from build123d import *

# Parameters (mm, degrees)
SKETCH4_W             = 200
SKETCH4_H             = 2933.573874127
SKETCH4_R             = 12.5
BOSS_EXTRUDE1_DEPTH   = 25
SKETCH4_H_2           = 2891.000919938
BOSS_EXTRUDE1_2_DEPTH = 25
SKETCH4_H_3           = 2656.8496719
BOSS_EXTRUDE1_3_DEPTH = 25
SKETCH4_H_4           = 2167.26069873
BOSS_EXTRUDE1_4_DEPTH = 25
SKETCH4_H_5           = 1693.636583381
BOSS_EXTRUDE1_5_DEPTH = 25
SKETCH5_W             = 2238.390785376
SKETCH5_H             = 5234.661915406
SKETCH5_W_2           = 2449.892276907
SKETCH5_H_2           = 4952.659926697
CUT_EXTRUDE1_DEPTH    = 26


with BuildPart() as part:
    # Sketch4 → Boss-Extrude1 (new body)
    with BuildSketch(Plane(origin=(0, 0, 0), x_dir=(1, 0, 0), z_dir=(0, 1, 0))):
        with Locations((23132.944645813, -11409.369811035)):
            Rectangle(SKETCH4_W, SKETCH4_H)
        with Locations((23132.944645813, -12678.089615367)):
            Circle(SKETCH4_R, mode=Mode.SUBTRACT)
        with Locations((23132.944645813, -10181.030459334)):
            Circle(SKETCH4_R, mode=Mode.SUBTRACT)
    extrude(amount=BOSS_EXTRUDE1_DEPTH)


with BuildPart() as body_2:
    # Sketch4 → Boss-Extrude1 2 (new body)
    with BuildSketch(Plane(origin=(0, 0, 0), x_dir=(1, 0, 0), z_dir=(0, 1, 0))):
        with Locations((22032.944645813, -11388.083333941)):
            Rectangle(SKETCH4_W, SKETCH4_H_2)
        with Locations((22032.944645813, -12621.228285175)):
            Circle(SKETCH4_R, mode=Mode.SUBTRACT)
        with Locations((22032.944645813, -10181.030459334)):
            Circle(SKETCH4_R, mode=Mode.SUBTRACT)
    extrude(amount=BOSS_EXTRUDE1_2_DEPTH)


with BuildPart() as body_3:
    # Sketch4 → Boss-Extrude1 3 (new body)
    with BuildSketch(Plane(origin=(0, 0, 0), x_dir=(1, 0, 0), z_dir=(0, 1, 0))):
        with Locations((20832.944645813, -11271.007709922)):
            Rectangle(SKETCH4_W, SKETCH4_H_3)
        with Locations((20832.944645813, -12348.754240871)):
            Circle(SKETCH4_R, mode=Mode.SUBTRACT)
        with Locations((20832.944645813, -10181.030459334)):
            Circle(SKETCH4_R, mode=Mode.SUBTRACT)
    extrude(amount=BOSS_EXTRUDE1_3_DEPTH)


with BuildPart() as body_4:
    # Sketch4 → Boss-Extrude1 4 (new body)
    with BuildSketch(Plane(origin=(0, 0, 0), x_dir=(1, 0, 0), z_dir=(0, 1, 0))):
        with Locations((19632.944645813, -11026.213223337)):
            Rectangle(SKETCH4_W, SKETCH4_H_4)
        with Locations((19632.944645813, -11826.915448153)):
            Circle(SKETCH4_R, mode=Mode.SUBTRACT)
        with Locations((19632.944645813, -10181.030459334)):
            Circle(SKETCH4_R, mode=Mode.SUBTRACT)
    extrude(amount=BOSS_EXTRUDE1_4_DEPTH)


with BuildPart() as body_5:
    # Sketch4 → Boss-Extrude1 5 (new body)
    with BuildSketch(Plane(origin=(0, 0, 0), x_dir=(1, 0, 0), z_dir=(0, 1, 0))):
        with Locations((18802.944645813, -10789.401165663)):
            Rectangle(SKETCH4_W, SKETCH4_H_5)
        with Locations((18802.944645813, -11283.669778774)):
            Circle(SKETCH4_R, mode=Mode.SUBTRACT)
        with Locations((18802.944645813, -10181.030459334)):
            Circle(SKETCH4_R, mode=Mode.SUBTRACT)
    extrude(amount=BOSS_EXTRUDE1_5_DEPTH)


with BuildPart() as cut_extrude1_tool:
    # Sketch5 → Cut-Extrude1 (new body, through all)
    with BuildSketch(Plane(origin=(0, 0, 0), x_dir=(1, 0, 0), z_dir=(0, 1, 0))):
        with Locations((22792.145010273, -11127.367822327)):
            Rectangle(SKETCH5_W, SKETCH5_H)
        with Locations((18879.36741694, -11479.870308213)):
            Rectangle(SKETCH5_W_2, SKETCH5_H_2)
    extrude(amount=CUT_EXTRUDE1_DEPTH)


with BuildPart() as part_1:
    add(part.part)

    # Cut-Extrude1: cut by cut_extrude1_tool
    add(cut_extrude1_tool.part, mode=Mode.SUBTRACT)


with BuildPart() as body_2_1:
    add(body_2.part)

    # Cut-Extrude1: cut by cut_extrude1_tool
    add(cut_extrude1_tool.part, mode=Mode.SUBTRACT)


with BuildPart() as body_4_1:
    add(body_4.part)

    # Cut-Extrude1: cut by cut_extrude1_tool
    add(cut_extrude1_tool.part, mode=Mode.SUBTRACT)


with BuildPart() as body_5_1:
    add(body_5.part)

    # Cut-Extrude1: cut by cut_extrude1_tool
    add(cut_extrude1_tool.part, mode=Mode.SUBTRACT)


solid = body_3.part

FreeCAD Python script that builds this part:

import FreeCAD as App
import Part
import Sketcher

V = App.Vector
Q = App.Units.Quantity

doc = App.newDocument("Part")
body = doc.addObject("PartDesign::Body", "Body")

# Sketch on XZ plane
sketch1 = body.newObject("Sketcher::SketchObject", "Sketch")
sketch1.AttachmentSupport = (doc.getObject("XZ_Plane"), [""])
sketch1.MapMode = "FlatFace"
sketch1.addGeometry([
    Part.LineSegment(V(23032.944646, 9942.582874, 0), V(23032.944646, 12876.156748, 0)),  # 0
    Part.LineSegment(V(23032.944646, 12876.156748, 0), V(23232.944646, 12876.156748, 0)),  # 1
    Part.LineSegment(V(23232.944646, 12876.156748, 0), V(23232.944646, 9942.582874, 0)),  # 2
    Part.LineSegment(V(23232.944646, 9942.582874, 0), V(23032.944646, 9942.582874, 0)),  # 3
    Part.Circle(V(23132.944646, 12678.089615, 0), V(0, 0, 1), 12.5),  # 4
    Part.Circle(V(23132.944646, 10181.030459, 0), V(0, 0, 1), 12.5),  # 5
], False)
sketch1.addConstraint([
    Sketcher.Constraint("Coincident", 0, 2, 1, 1),
    Sketcher.Constraint("Coincident", 1, 2, 2, 1),
    Sketcher.Constraint("Coincident", 2, 2, 3, 1),
    Sketcher.Constraint("Coincident", 3, 2, 0, 1),
    Sketcher.Constraint("Vertical", 0),
    Sketcher.Constraint("Horizontal", 1),
    Sketcher.Constraint("Vertical", 2),
    Sketcher.Constraint("Horizontal", 3),
    Sketcher.Constraint("Equal", 4, 5),
    Sketcher.Constraint("Vertical", 4, 3, 5, 3),
    Sketcher.Constraint("Diameter", 4, Q("25 mm")),
    Sketcher.Constraint("DistanceX", 1, 1, 1, 2, Q("200 mm")),
    Sketcher.Constraint("DistanceX", 0, 2, 4, 3, Q("100 mm")),
    Sketcher.Constraint("DistanceY", 0, 1, 0, 2, Q("2933.573874 mm")),
    Sketcher.Constraint("DistanceY", -1, 1, 5, 3, Q("10181.030459 mm")),
    Sketcher.Constraint("DistanceY", -1, 1, 0, 2, Q("12876.156748 mm")),
    Sketcher.Constraint("DistanceY", 2, 2, 4, 3, Q("2735.506741 mm")),
    Sketcher.Constraint("DistanceX", -1, 1, 4, 3, Q("23132.944646 mm")),
])
pad1 = body.newObject("PartDesign::Pad", "Pad")
pad1.Profile = sketch1
pad1.Length = 25
pad1.Reversed = True
body2 = doc.addObject("PartDesign::Body", "Body001")

# Sketch on XZ plane
sketch2 = body2.newObject("Sketcher::SketchObject", "Sketch001")
sketch2.AttachmentSupport = (doc.getObject("XZ_Plane001"), [""])
sketch2.MapMode = "FlatFace"
sketch2.addGeometry([
    Part.LineSegment(V(21932.944646, 9942.582874, 0), V(21932.944646, 12833.583794, 0)),  # 0
    Part.LineSegment(V(21932.944646, 12833.583794, 0), V(22132.944646, 12833.583794, 0)),  # 1
    Part.LineSegment(V(22132.944646, 12833.583794, 0), V(22132.944646, 9942.582874, 0)),  # 2
    Part.LineSegment(V(22132.944646, 9942.582874, 0), V(21932.944646, 9942.582874, 0)),  # 3
    Part.Circle(V(22032.944646, 12621.228285, 0), V(0, 0, 1), 12.5),  # 4
    Part.Circle(V(22032.944646, 10181.030459, 0), V(0, 0, 1), 12.5),  # 5
], False)
sketch2.addConstraint([
    Sketcher.Constraint("Coincident", 0, 2, 1, 1),
    Sketcher.Constraint("Coincident", 1, 2, 2, 1),
    Sketcher.Constraint("Coincident", 2, 2, 3, 1),
    Sketcher.Constraint("Coincident", 3, 2, 0, 1),
    Sketcher.Constraint("Vertical", 0),
    Sketcher.Constraint("Horizontal", 1),
    Sketcher.Constraint("Vertical", 2),
    Sketcher.Constraint("Horizontal", 3),
    Sketcher.Constraint("Equal", 4, 5),
    Sketcher.Constraint("Vertical", 4, 3, 5, 3),
    Sketcher.Constraint("Diameter", 4, Q("25 mm")),
    Sketcher.Constraint("DistanceX", 1, 1, 1, 2, Q("200 mm")),
    Sketcher.Constraint("DistanceX", 0, 2, 4, 3, Q("100 mm")),
    Sketcher.Constraint("DistanceY", 0, 1, 0, 2, Q("2891.00092 mm")),
    Sketcher.Constraint("DistanceY", -1, 1, 5, 3, Q("10181.030459 mm")),
    Sketcher.Constraint("DistanceY", 4, 3, 0, 2, Q("212.355509 mm")),
    Sketcher.Constraint("DistanceX", -1, 1, 4, 3, Q("22032.944646 mm")),
    Sketcher.Constraint("DistanceY", -1, 1, 4, 3, Q("12621.228285 mm")),
])
pad2 = body2.newObject("PartDesign::Pad", "Pad001")
pad2.Profile = sketch2
pad2.Length = 25
pad2.Reversed = True
body3 = doc.addObject("PartDesign::Body", "Body002")

# Sketch on XZ plane
sketch3 = body3.newObject("Sketcher::SketchObject", "Sketch002")
sketch3.AttachmentSupport = (doc.getObject("XZ_Plane002"), [""])
sketch3.MapMode = "FlatFace"
sketch3.addGeometry([
    Part.LineSegment(V(20732.944646, 9942.582874, 0), V(20732.944646, 12599.432546, 0)),  # 0
    Part.LineSegment(V(20732.944646, 12599.432546, 0), V(20932.944646, 12599.432546, 0)),  # 1
    Part.LineSegment(V(20932.944646, 12599.432546, 0), V(20932.944646, 9942.582874, 0)),  # 2
    Part.LineSegment(V(20932.944646, 9942.582874, 0), V(20732.944646, 9942.582874, 0)),  # 3
    Part.Circle(V(20832.944646, 12348.754241, 0), V(0, 0, 1), 12.5),  # 4
    Part.Circle(V(20832.944646, 10181.030459, 0), V(0, 0, 1), 12.5),  # 5
], False)
sketch3.addConstraint([
    Sketcher.Constraint("Coincident", 0, 2, 1, 1),
    Sketcher.Constraint("Coincident", 1, 2, 2, 1),
    Sketcher.Constraint("Coincident", 2, 2, 3, 1),
    Sketcher.Constraint("Coincident", 3, 2, 0, 1),
    Sketcher.Constraint("Vertical", 0),
    Sketcher.Constraint("Horizontal", 1),
    Sketcher.Constraint("Vertical", 2),
    Sketcher.Constraint("Horizontal", 3),
    Sketcher.Constraint("Equal", 4, 5),
    Sketcher.Constraint("Vertical", 4, 3, 5, 3),
    Sketcher.Constraint("Diameter", 4, Q("25 mm")),
    Sketcher.Constraint("DistanceX", 1, 1, 1, 2, Q("200 mm")),
    Sketcher.Constraint("DistanceX", 0, 2, 4, 3, Q("100 mm")),
    Sketcher.Constraint("DistanceY", 0, 1, 0, 2, Q("2656.849672 mm")),
    Sketcher.Constraint("DistanceY", -1, 1, 4, 3, Q("12348.754241 mm")),
    Sketcher.Constraint("DistanceY", -1, 1, 5, 3, Q("10181.030459 mm")),
    Sketcher.Constraint("DistanceX", -1, 1, 4, 3, Q("20832.944646 mm")),
    Sketcher.Constraint("DistanceY", -1, 1, 0, 2, Q("12599.432546 mm")),
])
pad3 = body3.newObject("PartDesign::Pad", "Pad002")
pad3.Profile = sketch3
pad3.Length = 25
pad3.Reversed = True
body4 = doc.addObject("PartDesign::Body", "Body003")

# Sketch on XZ plane
sketch4 = body4.newObject("Sketcher::SketchObject", "Sketch003")
sketch4.AttachmentSupport = (doc.getObject("XZ_Plane003"), [""])
sketch4.MapMode = "FlatFace"
sketch4.addGeometry([
    Part.LineSegment(V(19532.944646, 9942.582874, 0), V(19532.944646, 12109.843573, 0)),  # 0
    Part.LineSegment(V(19532.944646, 12109.843573, 0), V(19732.944646, 12109.843573, 0)),  # 1
    Part.LineSegment(V(19732.944646, 12109.843573, 0), V(19732.944646, 9942.582874, 0)),  # 2
    Part.LineSegment(V(19732.944646, 9942.582874, 0), V(19532.944646, 9942.582874, 0)),  # 3
    Part.Circle(V(19632.944646, 11826.915448, 0), V(0, 0, 1), 12.5),  # 4
    Part.Circle(V(19632.944646, 10181.030459, 0), V(0, 0, 1), 12.5),  # 5
], False)
sketch4.addConstraint([
    Sketcher.Constraint("Coincident", 0, 2, 1, 1),
    Sketcher.Constraint("Coincident", 1, 2, 2, 1),
    Sketcher.Constraint("Coincident", 2, 2, 3, 1),
    Sketcher.Constraint("Coincident", 3, 2, 0, 1),
    Sketcher.Constraint("Vertical", 0),
    Sketcher.Constraint("Horizontal", 1),
    Sketcher.Constraint("Vertical", 2),
    Sketcher.Constraint("Horizontal", 3),
    Sketcher.Constraint("Equal", 4, 5),
    Sketcher.Constraint("Vertical", 4, 3, 5, 3),
    Sketcher.Constraint("Diameter", 4, Q("25 mm")),
    Sketcher.Constraint("DistanceX", 1, 1, 1, 2, Q("200 mm")),
    Sketcher.Constraint("DistanceX", 0, 2, 4, 3, Q("100 mm")),
    Sketcher.Constraint("DistanceY", 0, 1, 0, 2, Q("2167.260699 mm")),
    Sketcher.Constraint("DistanceY", -1, 1, 4, 3, Q("11826.915448 mm")),
    Sketcher.Constraint("DistanceY", -1, 1, 5, 3, Q("10181.030459 mm")),
    Sketcher.Constraint("DistanceX", -1, 1, 4, 3, Q("19632.944646 mm")),
    Sketcher.Constraint("DistanceY", -1, 1, 0, 2, Q("12109.843573 mm")),
])
pad4 = body4.newObject("PartDesign::Pad", "Pad003")
pad4.Profile = sketch4
pad4.Length = 25
pad4.Reversed = True
body5 = doc.addObject("PartDesign::Body", "Body004")

# Sketch on XZ plane
sketch5 = body5.newObject("Sketcher::SketchObject", "Sketch004")
sketch5.AttachmentSupport = (doc.getObject("XZ_Plane004"), [""])
sketch5.MapMode = "FlatFace"
sketch5.addGeometry([
    Part.LineSegment(V(18702.944646, 9942.582874, 0), V(18702.944646, 11636.219457, 0)),  # 0
    Part.LineSegment(V(18702.944646, 11636.219457, 0), V(18902.944646, 11636.219457, 0)),  # 1
    Part.LineSegment(V(18902.944646, 11636.219457, 0), V(18902.944646, 9942.582874, 0)),  # 2
    Part.LineSegment(V(18902.944646, 9942.582874, 0), V(18702.944646, 9942.582874, 0)),  # 3
    Part.Circle(V(18802.944646, 11283.669779, 0), V(0, 0, 1), 12.5),  # 4
    Part.Circle(V(18802.944646, 10181.030459, 0), V(0, 0, 1), 12.5),  # 5
], False)
sketch5.addConstraint([
    Sketcher.Constraint("Coincident", 0, 2, 1, 1),
    Sketcher.Constraint("Coincident", 1, 2, 2, 1),
    Sketcher.Constraint("Coincident", 2, 2, 3, 1),
    Sketcher.Constraint("Coincident", 3, 2, 0, 1),
    Sketcher.Constraint("Vertical", 0),
    Sketcher.Constraint("Horizontal", 1),
    Sketcher.Constraint("Vertical", 2),
    Sketcher.Constraint("Horizontal", 3),
    Sketcher.Constraint("Equal", 4, 5),
    Sketcher.Constraint("Vertical", 4, 3, 5, 3),
    Sketcher.Constraint("Diameter", 4, Q("25 mm")),
    Sketcher.Constraint("DistanceX", 1, 1, 1, 2, Q("200 mm")),
    Sketcher.Constraint("DistanceX", 0, 2, 4, 3, Q("100 mm")),
    Sketcher.Constraint("DistanceY", 5, 3, 0, 2, Q("1455.188998 mm")),
    Sketcher.Constraint("DistanceY", 0, 1, 0, 2, Q("1693.636583 mm")),
    Sketcher.Constraint("DistanceY", -1, 1, 4, 3, Q("11283.669779 mm")),
    Sketcher.Constraint("DistanceY", -1, 1, 5, 3, Q("10181.030459 mm")),
    Sketcher.Constraint("DistanceX", -1, 1, 4, 3, Q("18802.944646 mm")),
])
pad5 = body5.newObject("PartDesign::Pad", "Pad004")
pad5.Profile = sketch5
pad5.Length = 25
pad5.Reversed = True
body6 = doc.addObject("PartDesign::Body", "Body005")
body6.AllowCompound = True

# Sketch on XZ plane
sketch6 = body6.newObject("Sketcher::SketchObject", "Sketch005")
sketch6.AttachmentSupport = (doc.getObject("XZ_Plane005"), [""])
sketch6.MapMode = "FlatFace"
sketch6.addGeometry([
    Part.LineSegment(V(21672.949618, 8510.036865, 0), V(21672.949618, 13744.69878, 0)),  # 0
    Part.LineSegment(V(21672.949618, 13744.69878, 0), V(23911.340403, 13744.69878, 0)),  # 1
    Part.LineSegment(V(23911.340403, 13744.69878, 0), V(23911.340403, 8510.036865, 0)),  # 2
    Part.LineSegment(V(23911.340403, 8510.036865, 0), V(21672.949618, 8510.036865, 0)),  # 3
    Part.LineSegment(V(17654.421278, 9003.540345, 0), V(17654.421278, 13956.200272, 0)),  # 4
    Part.LineSegment(V(17654.421278, 13956.200272, 0), V(20104.313555, 13956.200272, 0)),  # 5
    Part.LineSegment(V(20104.313555, 13956.200272, 0), V(20104.313555, 9003.540345, 0)),  # 6
    Part.LineSegment(V(20104.313555, 9003.540345, 0), V(17654.421278, 9003.540345, 0)),  # 7
], False)
sketch6.addConstraint([
    Sketcher.Constraint("Coincident", 0, 2, 1, 1),
    Sketcher.Constraint("Coincident", 1, 2, 2, 1),
    Sketcher.Constraint("Coincident", 2, 2, 3, 1),
    Sketcher.Constraint("Coincident", 3, 2, 0, 1),
    Sketcher.Constraint("Coincident", 4, 2, 5, 1),
    Sketcher.Constraint("Coincident", 5, 2, 6, 1),
    Sketcher.Constraint("Coincident", 6, 2, 7, 1),
    Sketcher.Constraint("Coincident", 7, 2, 4, 1),
    Sketcher.Constraint("Vertical", 0),
    Sketcher.Constraint("Horizontal", 1),
    Sketcher.Constraint("Vertical", 2),
    Sketcher.Constraint("Horizontal", 3),
    Sketcher.Constraint("Vertical", 4),
    Sketcher.Constraint("Horizontal", 5),
    Sketcher.Constraint("Vertical", 6),
    Sketcher.Constraint("Horizontal", 7),
    Sketcher.Constraint("DistanceX", 1, 1, 1, 2, Q("2238.390785 mm")),
    Sketcher.Constraint("DistanceX", 5, 1, 5, 2, Q("2449.892277 mm")),
    Sketcher.Constraint("DistanceY", 0, 1, 0, 2, Q("5234.661915 mm")),
    Sketcher.Constraint("DistanceY", 4, 1, 4, 2, Q("4952.659927 mm")),
    Sketcher.Constraint("DistanceY", -1, 1, 0, 2, Q("13744.69878 mm")),
    Sketcher.Constraint("DistanceX", -1, 1, 4, 2, Q("17654.421278 mm")),
    Sketcher.Constraint("DistanceY", -1, 1, 4, 2, Q("13956.200272 mm")),
    Sketcher.Constraint("DistanceX", 4, 2, 0, 2, Q("4018.528339 mm")),
])
pad6 = body6.newObject("PartDesign::Pad", "Pad005")
pad6.Profile = sketch6
pad6.Length = 26
pad6.Reversed = True
doc.recompute()

body7 = doc.addObject("PartDesign::Body", "Body006")
body7.BaseFeature = body6
boolean = body.newObject("PartDesign::Boolean", "Boolean")
boolean.Type = "Cut"
boolean.addObjects([body7])
doc.recompute()

body8 = doc.addObject("PartDesign::Body", "Body007")
body8.BaseFeature = body6
boolean2 = body2.newObject("PartDesign::Boolean", "Boolean001")
boolean2.Type = "Cut"
boolean2.addObjects([body8])
doc.recompute()

body9 = doc.addObject("PartDesign::Body", "Body008")
body9.BaseFeature = body6
boolean3 = body4.newObject("PartDesign::Boolean", "Boolean002")
boolean3.Type = "Cut"
boolean3.addObjects([body9])
doc.recompute()

boolean4 = body5.newObject("PartDesign::Boolean", "Boolean003")
boolean4.Type = "Cut"
boolean4.addObjects([body6])

doc.recompute()
